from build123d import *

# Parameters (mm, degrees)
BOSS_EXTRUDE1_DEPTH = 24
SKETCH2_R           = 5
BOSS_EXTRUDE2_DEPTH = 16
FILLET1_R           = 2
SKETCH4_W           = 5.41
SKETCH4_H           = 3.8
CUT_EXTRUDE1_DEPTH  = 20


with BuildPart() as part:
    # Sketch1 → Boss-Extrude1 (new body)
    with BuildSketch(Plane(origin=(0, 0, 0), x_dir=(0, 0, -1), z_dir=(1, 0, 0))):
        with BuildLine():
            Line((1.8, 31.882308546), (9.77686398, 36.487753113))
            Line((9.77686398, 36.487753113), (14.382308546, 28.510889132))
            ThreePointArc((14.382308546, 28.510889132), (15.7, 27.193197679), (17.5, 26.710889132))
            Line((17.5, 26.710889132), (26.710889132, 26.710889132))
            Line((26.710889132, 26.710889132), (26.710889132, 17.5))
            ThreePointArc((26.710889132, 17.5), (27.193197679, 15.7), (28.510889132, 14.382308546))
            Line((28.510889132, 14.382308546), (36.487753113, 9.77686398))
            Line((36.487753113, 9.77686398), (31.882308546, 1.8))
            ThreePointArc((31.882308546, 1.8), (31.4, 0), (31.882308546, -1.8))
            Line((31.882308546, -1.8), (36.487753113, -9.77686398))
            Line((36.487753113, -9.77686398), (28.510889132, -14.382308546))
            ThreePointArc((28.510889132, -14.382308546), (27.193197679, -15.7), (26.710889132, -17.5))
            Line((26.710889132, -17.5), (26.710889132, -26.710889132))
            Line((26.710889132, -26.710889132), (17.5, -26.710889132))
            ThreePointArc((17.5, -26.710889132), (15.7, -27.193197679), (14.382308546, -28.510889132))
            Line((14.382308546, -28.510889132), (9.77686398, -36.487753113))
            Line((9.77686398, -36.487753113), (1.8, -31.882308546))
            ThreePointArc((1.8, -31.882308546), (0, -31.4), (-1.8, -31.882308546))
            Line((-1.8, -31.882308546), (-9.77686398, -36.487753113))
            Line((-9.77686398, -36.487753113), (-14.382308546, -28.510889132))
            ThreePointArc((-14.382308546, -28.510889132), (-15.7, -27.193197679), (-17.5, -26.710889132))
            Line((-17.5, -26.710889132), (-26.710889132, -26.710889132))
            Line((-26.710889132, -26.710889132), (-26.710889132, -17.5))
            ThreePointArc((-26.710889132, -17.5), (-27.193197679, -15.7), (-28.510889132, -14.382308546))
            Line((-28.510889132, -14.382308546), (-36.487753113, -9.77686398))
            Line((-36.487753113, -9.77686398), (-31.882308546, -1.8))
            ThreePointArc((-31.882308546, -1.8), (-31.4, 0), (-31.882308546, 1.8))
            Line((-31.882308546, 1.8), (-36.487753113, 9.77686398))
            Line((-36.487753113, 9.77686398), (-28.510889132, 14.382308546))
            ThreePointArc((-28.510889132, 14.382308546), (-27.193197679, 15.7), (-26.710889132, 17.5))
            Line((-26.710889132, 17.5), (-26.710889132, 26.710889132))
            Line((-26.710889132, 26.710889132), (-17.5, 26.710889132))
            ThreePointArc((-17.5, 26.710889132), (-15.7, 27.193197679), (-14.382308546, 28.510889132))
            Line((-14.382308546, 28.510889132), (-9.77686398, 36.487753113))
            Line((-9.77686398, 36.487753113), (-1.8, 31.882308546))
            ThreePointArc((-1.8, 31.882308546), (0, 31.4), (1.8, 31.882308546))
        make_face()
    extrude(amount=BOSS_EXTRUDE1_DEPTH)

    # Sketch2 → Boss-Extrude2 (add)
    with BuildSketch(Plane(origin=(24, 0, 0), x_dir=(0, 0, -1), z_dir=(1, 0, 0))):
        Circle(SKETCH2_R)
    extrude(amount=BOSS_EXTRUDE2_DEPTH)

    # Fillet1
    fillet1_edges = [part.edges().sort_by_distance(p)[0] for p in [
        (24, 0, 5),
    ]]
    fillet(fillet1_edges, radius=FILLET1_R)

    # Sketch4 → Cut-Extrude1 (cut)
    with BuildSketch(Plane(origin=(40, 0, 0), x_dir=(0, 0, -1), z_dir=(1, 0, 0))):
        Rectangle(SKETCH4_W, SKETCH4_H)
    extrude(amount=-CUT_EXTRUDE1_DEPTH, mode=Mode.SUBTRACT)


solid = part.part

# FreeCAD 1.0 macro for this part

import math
import FreeCAD as App
import Part
import Sketcher
from FreeCAD import Vector
Q = App.Units.Quantity


def edges_at(feature, points):
    """Names of the edges that pass closest to the given points."""
    edges = feature.Shape.Edges
    near = lambda p: min(range(len(edges)), key=lambda i: edges[i].distToShape(Part.Vertex(*p))[0])
    return sorted({f"Edge{near(p) + 1}" for p in points})


def add_polygon(sketch, points):
    """Adds a closed chain of lines whose ends are joined by coincident constraints."""
    first, n = sketch.GeometryCount, len(points)
    for a, b in zip(points, points[1:] + points[:1]):
        sketch.addGeometry(Part.LineSegment(App.Vector(*a, 0), App.Vector(*b, 0)), False)
    for i in range(n):
        sketch.addConstraint(Sketcher.Constraint("Coincident", first + i, 2, first + (i + 1) % n, 1))

doc = App.newDocument("Part")
body = doc.addObject("PartDesign::Body", "Body")

# Sketch on YZ plane
sketch1 = doc.addObject("Sketcher::SketchObject", "Sketch")
body.addObject(sketch1)
sketch1.AttachmentSupport = (doc.YZ_Plane, [""])
sketch1.MapMode = "FlatFace"
sketch1.addGeometry([
    Part.LineSegment(Vector(36.5, -9.8, 0), Vector(31.9, -1.8, 0)),  # 0
    Part.ArcOfCircle(Part.Circle(Vector(35, 0, 0), Vector(0, 0, 1), 3.6), math.radians(150), math.radians(210)),  # 1
    Part.LineSegment(Vector(31.9, 1.8, 0), Vector(36.5, 9.8, 0)),  # 2
    Part.LineSegment(Vector(36.5, 9.8, 0), Vector(28.5, 14.4, 0)),  # 3
    Part.ArcOfCircle(Part.Circle(Vector(30.3, 17.5, 0), Vector(0, 0, 1), 3.6), math.radians(-180), math.radians(-120)),  # 4
    Part.LineSegment(Vector(26.7, 17.5, 0), Vector(26.7, 26.7, 0)),  # 5
    Part.LineSegment(Vector(26.7, 26.7, 0), Vector(17.5, 26.7, 0)),  # 6
    Part.ArcOfCircle(Part.Circle(Vector(17.5, 30.3, 0), Vector(0, 0, 1), 3.6), math.radians(-150), math.radians(-90)),  # 7
    Part.LineSegment(Vector(14.4, 28.5, 0), Vector(9.8, 36.5, 0)),  # 8
    Part.LineSegment(Vector(9.8, 36.5, 0), Vector(1.8, 31.9, 0)),  # 9
    Part.ArcOfCircle(Part.Circle(Vector(0, 35, 0), Vector(0, 0, 1), 3.6), math.radians(-120), math.radians(-60)),  # 10
    Part.LineSegment(Vector(-1.8, 31.9, 0), Vector(-9.8, 36.5, 0)),  # 11
    Part.LineSegment(Vector(-9.8, 36.5, 0), Vector(-14.4, 28.5, 0)),  # 12
    Part.ArcOfCircle(Part.Circle(Vector(-17.5, 30.3, 0), Vector(0, 0, 1), 3.6), math.radians(-90), math.radians(-30)),  # 13
    Part.LineSegment(Vector(-17.5, 26.7, 0), Vector(-26.7, 26.7, 0)),  # 14
    Part.LineSegment(Vector(-26.7, 26.7, 0), Vector(-26.7, 17.5, 0)),  # 15
    Part.ArcOfCircle(Part.Circle(Vector(-30.3, 17.5, 0), Vector(0, 0, 1), 3.6), math.radians(-60), math.radians(0)),  # 16
    Part.LineSegment(Vector(-28.5, 14.4, 0), Vector(-36.5, 9.8, 0)),  # 17
    Part.LineSegment(Vector(-36.5, 9.8, 0), Vector(-31.9, 1.8, 0)),  # 18
    Part.ArcOfCircle(Part.Circle(Vector(-35, 0, 0), Vector(0, 0, 1), 3.6), math.radians(-30), math.radians(30)),  # 19
    Part.LineSegment(Vector(-31.9, -1.8, 0), Vector(-36.5, -9.8, 0)),  # 20
    Part.LineSegment(Vector(-36.5, -9.8, 0), Vector(-28.5, -14.4, 0)),  # 21
    Part.ArcOfCircle(Part.Circle(Vector(-30.3, -17.5, 0), Vector(0, 0, 1), 3.6), math.radians(0), math.radians(60)),  # 22
    Part.LineSegment(Vector(-26.7, -17.5, 0), Vector(-26.7, -26.7, 0)),  # 23
    Part.LineSegment(Vector(-26.7, -26.7, 0), Vector(-17.5, -26.7, 0)),  # 24
    Part.ArcOfCircle(Part.Circle(Vector(-17.5, -30.3, 0), Vector(0, 0, 1), 3.6), math.radians(30), math.radians(90)),  # 25
    Part.LineSegment(Vector(-14.4, -28.5, 0), Vector(-9.8, -36.5, 0)),  # 26
    Part.LineSegment(Vector(-9.8, -36.5, 0), Vector(-1.8, -31.9, 0)),  # 27
    Part.ArcOfCircle(Part.Circle(Vector(0, -35, 0), Vector(0, 0, 1), 3.6), math.radians(60), math.radians(120)),  # 28
    Part.LineSegment(Vector(1.8, -31.9, 0), Vector(9.8, -36.5, 0)),  # 29
    Part.LineSegment(Vector(9.8, -36.5, 0), Vector(14.4, -28.5, 0)),  # 30
    Part.ArcOfCircle(Part.Circle(Vector(17.5, -30.3, 0), Vector(0, 0, 1), 3.6), math.radians(90), math.radians(150)),  # 31
    Part.LineSegment(Vector(17.5, -26.7, 0), Vector(26.7, -26.7, 0)),  # 32
    Part.LineSegment(Vector(26.7, -26.7, 0), Vector(26.7, -17.5, 0)),  # 33
    Part.ArcOfCircle(Part.Circle(Vector(30.3, -17.5, 0), Vector(0, 0, 1), 3.6), math.radians(120), math.radians(180)),  # 34
    Part.LineSegment(Vector(28.5, -14.4, 0), Vector(36.5, -9.8, 0)),  # 35
], False)
sketch1.addConstraint([
    Sketcher.Constraint("Tangent", 0, 2, 1, 2),
    Sketcher.Constraint("Tangent", 1, 1, 2, 1),
    Sketcher.Constraint("Coincident", 2, 2, 3, 1),
    Sketcher.Constraint("Tangent", 3, 2, 4, 2),
    Sketcher.Constraint("Tangent", 4, 1, 5, 1),
    Sketcher.Constraint("Coincident", 5, 2, 6, 1),
    Sketcher.Constraint("Tangent", 6, 2, 7, 2),
    Sketcher.Constraint("Tangent", 7, 1, 8, 1),
    Sketcher.Constraint("Coincident", 8, 2, 9, 1),
    Sketcher.Constraint("Tangent", 9, 2, 10, 2),
    Sketcher.Constraint("Tangent", 10, 1, 11, 1),
    Sketcher.Constraint("Coincident", 11, 2, 12, 1),
    Sketcher.Constraint("Tangent", 12, 2, 13, 2),
    Sketcher.Constraint("Tangent", 13, 1, 14, 1),
    Sketcher.Constraint("Coincident", 14, 2, 15, 1),
    Sketcher.Constraint("Tangent", 15, 2, 16, 2),
    Sketcher.Constraint("Tangent", 16, 1, 17, 1),
    Sketcher.Constraint("Coincident", 17, 2, 18, 1),
    Sketcher.Constraint("Tangent", 18, 2, 19, 2),
    Sketcher.Constraint("Tangent", 19, 1, 20, 1),
    Sketcher.Constraint("Coincident", 20, 2, 21, 1),
    Sketcher.Constraint("Tangent", 21, 2, 22, 2),
    Sketcher.Constraint("Tangent", 22, 1, 23, 1),
    Sketcher.Constraint("Coincident", 23, 2, 24, 1),
    Sketcher.Constraint("Tangent", 24, 2, 25, 2),
    Sketcher.Constraint("Tangent", 25, 1, 26, 1),
    Sketcher.Constraint("Coincident", 26, 2, 27, 1),
    Sketcher.Constraint("Tangent", 27, 2, 28, 2),
    Sketcher.Constraint("Tangent", 28, 1, 29, 1),
    Sketcher.Constraint("Coincident", 29, 2, 30, 1),
    Sketcher.Constraint("Tangent", 30, 2, 31, 2),
    Sketcher.Constraint("Tangent", 31, 1, 32, 1),
    Sketcher.Constraint("Coincident", 32, 2, 33, 1),
    Sketcher.Constraint("Tangent", 33, 2, 34, 2),
    Sketcher.Constraint("Tangent", 34, 1, 35, 1),
    Sketcher.Constraint("Coincident", 35, 2, 0, 1),
    Sketcher.Constraint("Vertical", 5),
    Sketcher.Constraint("Horizontal", 6),
    Sketcher.Constraint("Horizontal", 14),
    Sketcher.Constraint("Vertical", 15),
    Sketcher.Constraint("Vertical", 23),
    Sketcher.Constraint("Horizontal", 24),
    Sketcher.Constraint("Horizontal", 32),
    Sketcher.Constraint("Vertical", 33),
    Sketcher.Constraint("Equal", 1, 4),
    Sketcher.Constraint("Equal", 4, 7),
    Sketcher.Constraint("Equal", 7, 10),
    Sketcher.Constraint("Equal", 10, 13),
    Sketcher.Constraint("Equal", 13, 16),
    Sketcher.Constraint("Equal", 16, 19),
    Sketcher.Constraint("Equal", 19, 22),
    Sketcher.Constraint("Equal", 22, 25),
    Sketcher.Constraint("Equal", 25, 28),
    Sketcher.Constraint("Equal", 28, 31),
    Sketcher.Constraint("Equal", 31, 34),
    Sketcher.Constraint("Symmetric", 1, 3, 19, 3, -1, 1),
    Sketcher.Constraint("Symmetric", 4, 3, 22, 3, -1, 1),
    Sketcher.Constraint("Symmetric", 7, 3, 25, 3, -1, 1),
    Sketcher.Constraint("Symmetric", 10, 3, 28, 3, -1, 1),
    Sketcher.Constraint("Symmetric", 13, 3, 31, 3, -1, 1),
    Sketcher.Constraint("Symmetric", 16, 3, 34, 3, -1, 1),
    Sketcher.Constraint("Symmetric", 2, 2, 20, 2, -1, 1),
    Sketcher.Constraint("Symmetric", 8, 2, 26, 2, -1, 1),
    Sketcher.Constraint("Symmetric", 11, 2, 29, 2, -1, 1),
    Sketcher.Constraint("Symmetric", 17, 2, 35, 2, -1, 1),
    Sketcher.Constraint("Symmetric", 7, 3, 13, 3, -2),
    Sketcher.Constraint("Symmetric", 4, 3, 16, 3, -2),
    Sketcher.Constraint("Symmetric", 9, 2, 10, 1, -2),
    Sketcher.Constraint("Symmetric", 2, 2, 17, 2, -2),
    Sketcher.Constraint("PointOnObject", 1, 3, -1),
    Sketcher.Constraint("Perpendicular", 2, 3),
    Sketcher.Constraint("Parallel", 0, 8),
    Sketcher.Constraint("Perpendicular", 8, 9),
    Sketcher.Constraint("Perpendicular", 11, 12),
    Sketcher.Constraint("Equal", 32, 5),
    Sketcher.Constraint("Equal", 2, 3),
    Sketcher.Constraint("Equal", 3, 8),
    Sketcher.Constraint("Equal", 8, 9),
    Sketcher.Constraint("Radius", 1, 3.6),
    Sketcher.Constraint("Angle", 0, Q("120 deg")),
    Sketcher.Constraint("DistanceX", -1, 1, 1, 3, 35.0),
    Sketcher.Constraint("DistanceX", 13, 3, 7, 3, 35.0),
])
pad1 = doc.addObject("PartDesign::Pad", "Pad")
body.addObject(pad1)
pad1.Profile = sketch1
pad1.Length = 24

# Sketch on YZ plane
sketch2 = doc.addObject("Sketcher::SketchObject", "Sketch001")
body.addObject(sketch2)
sketch2.AttachmentSupport = (doc.YZ_Plane, [""])
sketch2.MapMode = "FlatFace"
sketch2.AttachmentOffset = App.Placement(Vector(0, 0, 24), App.Rotation())
sketch2.addGeometry(Part.Circle(Vector(0, 0, 0), Vector(0, 0, 1), 5), False)
sketch2.addConstraint([
    Sketcher.Constraint("Coincident", 0, 3, -1, 1),
    Sketcher.Constraint("Diameter", 0, 10.0),
])
pad2 = doc.addObject("PartDesign::Pad", "Pad001")
body.addObject(pad2)
pad2.Profile = sketch2
pad2.Length = 16
doc.recompute()

fillet = doc.addObject("PartDesign::Fillet", "Fillet")
body.addObject(fillet)
fillet.Base = (pad2, edges_at(pad2, [(24, 0, 5)]))
fillet.Radius = 2

# Sketch on YZ plane
sketch3 = doc.addObject("Sketcher::SketchObject", "Sketch002")
body.addObject(sketch3)
sketch3.AttachmentSupport = (doc.YZ_Plane, [""])
sketch3.MapMode = "FlatFace"
sketch3.AttachmentOffset = App.Placement(Vector(0, 0, 40), App.Rotation())
add_polygon(sketch3, [(1.9, 2.7), (-1.9, 2.7), (-1.9, -2.7), (1.9, -2.7)])  # lines 0-3
sketch3.addConstraint([
    Sketcher.Constraint("Horizontal", 0),
    Sketcher.Constraint("Vertical", 1),
    Sketcher.Constraint("Horizontal", 2),
    Sketcher.Constraint("Vertical", 3),
    Sketcher.Constraint("Symmetric", 0, 2, 2, 2, -1, 1),
    Sketcher.Constraint("DistanceX", 0, 2, 0, 1, 3.8),
    Sketcher.Constraint("DistanceY", 1, 2, 1, 1, 5.41),
])
pocket1 = doc.addObject("PartDesign::Pocket", "Pocket")
body.addObject(pocket1)
pocket1.Profile = sketch3
pocket1.Length = 20

doc.recompute()
